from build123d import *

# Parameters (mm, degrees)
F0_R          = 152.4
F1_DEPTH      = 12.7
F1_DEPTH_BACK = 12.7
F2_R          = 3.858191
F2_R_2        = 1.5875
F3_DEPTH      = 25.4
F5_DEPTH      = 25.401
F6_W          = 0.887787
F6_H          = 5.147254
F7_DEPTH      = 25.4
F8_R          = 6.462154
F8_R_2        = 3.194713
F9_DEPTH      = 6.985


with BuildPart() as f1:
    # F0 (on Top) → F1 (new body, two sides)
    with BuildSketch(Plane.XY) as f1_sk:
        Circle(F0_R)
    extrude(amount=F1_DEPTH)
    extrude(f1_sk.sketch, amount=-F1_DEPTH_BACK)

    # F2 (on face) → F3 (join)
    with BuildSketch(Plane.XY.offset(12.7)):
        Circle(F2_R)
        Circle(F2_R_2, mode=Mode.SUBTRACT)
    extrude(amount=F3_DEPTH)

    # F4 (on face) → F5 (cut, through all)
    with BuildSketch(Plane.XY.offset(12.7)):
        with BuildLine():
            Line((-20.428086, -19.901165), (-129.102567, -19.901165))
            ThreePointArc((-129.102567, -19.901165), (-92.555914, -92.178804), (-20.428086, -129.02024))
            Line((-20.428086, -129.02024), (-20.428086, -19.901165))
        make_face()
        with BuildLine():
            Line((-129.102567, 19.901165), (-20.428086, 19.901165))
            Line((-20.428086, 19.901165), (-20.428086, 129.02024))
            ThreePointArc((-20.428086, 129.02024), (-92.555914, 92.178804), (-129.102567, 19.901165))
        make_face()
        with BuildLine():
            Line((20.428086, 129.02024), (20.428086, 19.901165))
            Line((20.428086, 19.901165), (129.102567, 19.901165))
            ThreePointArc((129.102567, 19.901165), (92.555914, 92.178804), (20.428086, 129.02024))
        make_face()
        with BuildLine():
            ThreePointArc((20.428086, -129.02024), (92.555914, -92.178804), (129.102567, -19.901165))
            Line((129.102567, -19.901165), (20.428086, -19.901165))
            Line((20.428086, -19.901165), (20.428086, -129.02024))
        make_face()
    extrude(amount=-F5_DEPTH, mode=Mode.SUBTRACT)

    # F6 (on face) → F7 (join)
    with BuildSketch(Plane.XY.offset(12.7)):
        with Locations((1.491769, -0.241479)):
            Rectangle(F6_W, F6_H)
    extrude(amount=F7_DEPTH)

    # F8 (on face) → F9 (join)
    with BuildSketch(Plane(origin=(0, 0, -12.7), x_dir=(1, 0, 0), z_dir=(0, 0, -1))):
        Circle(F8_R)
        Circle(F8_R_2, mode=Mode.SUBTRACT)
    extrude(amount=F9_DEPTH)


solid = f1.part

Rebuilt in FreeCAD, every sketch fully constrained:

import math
import FreeCAD as App
import Part
import Sketcher
from FreeCAD import Vector
Q = App.Units.Quantity


def add_polygon(sketch, points):
    """Adds a closed chain of lines whose ends are joined by coincident constraints."""
    first, n = sketch.GeometryCount, len(points)
    for a, b in zip(points, points[1:] + points[:1]):
        sketch.addGeometry(Part.LineSegment(App.Vector(*a, 0), App.Vector(*b, 0)), False)
    for i in range(n):
        sketch.addConstraint(Sketcher.Constraint("Coincident", first + i, 2, first + (i + 1) % n, 1))

doc = App.newDocument("Part")
params = doc.addObject("Spreadsheet::Sheet", "Params")
for row, (alias, value) in enumerate([
    ("sketch1_diameter", "12 in"),
    ("pad1_length", "0.5 in"),
    ("pad1_length2", "0.5 in"),
    ("sketch2_diameter", "0.125 in"),
    ("pad2_length", "1 in"),
    ("pad3_length", "1 in"),
    ("pad4_length", "0.275 in"),
], start=1):
    params.set(f"A{row}", alias)
    params.set(f"B{row}", "=" + value)
    params.setAlias(f"B{row}", alias)

body = doc.addObject("PartDesign::Body", "Body")

sketch1 = body.newObject("Sketcher::SketchObject", "Sketch")
sketch1.AttachmentSupport = (doc.getObject("XY_Plane"), [""])
sketch1.MapMode = "FlatFace"
sketch1.addGeometry(Part.Circle(Vector(0, 0, 0), Vector(0, 0, 1), 152), False)
sketch1.addConstraint(Sketcher.Constraint("Coincident", 0, 3, -1, 1))
sketch1.addConstraint(Sketcher.Constraint("Diameter", 0, Q("12 in")))
sketch1.setExpression("Constraints[1]", "Params.sketch1_diameter")
pad1 = body.newObject("PartDesign::Pad", "Pad")
pad1.Profile = sketch1
pad1.Type = "TwoLengths"
pad1.setExpression("Length", "Params.pad1_length")
pad1.setExpression("Length2", "Params.pad1_length2")

sketch2 = body.newObject("Sketcher::SketchObject", "Sketch001")
sketch2.AttachmentSupport = (doc.getObject("XY_Plane"), [""])
sketch2.MapMode = "FlatFace"
sketch2.AttachmentOffset = App.Placement(Vector(0, 0, 0.5 * 25.4), App.Rotation())
sketch2.addGeometry(Part.Circle(Vector(0, 0, 0), Vector(0, 0, 1), 3.9), False)
sketch2.addGeometry(Part.Circle(Vector(0, 0, 0), Vector(0, 0, 1), 1.6), False)
sketch2.addConstraint(Sketcher.Constraint("Coincident", 0, 3, -1, 1))
sketch2.addConstraint(Sketcher.Constraint("Coincident", 1, 3, -1, 1))
sketch2.addConstraint(Sketcher.Constraint("Diameter", 1, Q("0.125 in")))
sketch2.addConstraint(Sketcher.Constraint("Diameter", 0, Q("7.716382 mm")))
sketch2.setExpression("Constraints[2]", "Params.sketch2_diameter")
pad2 = body.newObject("PartDesign::Pad", "Pad001")
pad2.Profile = sketch2
pad2.setExpression("Length", "Params.pad2_length")

sketch3 = body.newObject("Sketcher::SketchObject", "Sketch002")
sketch3.AttachmentSupport = (doc.getObject("XY_Plane"), [""])
sketch3.MapMode = "FlatFace"
sketch3.AttachmentOffset = App.Placement(Vector(0, 0, 0.5 * 25.4), App.Rotation())
sketch3.addGeometry(Part.LineSegment(Vector(-20, -20, 0), Vector(-129, -20, 0)), False)
sketch3.addGeometry(Part.ArcOfCircle(Part.Circle(Vector(0, 0, 0), Vector(0, 0, 1), 131), math.radians(-171), math.radians(-99)), False)
sketch3.addGeometry(Part.LineSegment(Vector(-20, -129, 0), Vector(-20, -20, 0)), False)
sketch3.addGeometry(Part.LineSegment(Vector(-129, 20, 0), Vector(-20, 20, 0)), False)
sketch3.addGeometry(Part.LineSegment(Vector(-20, 20, 0), Vector(-20, 129, 0)), False)
sketch3.addGeometry(Part.ArcOfCircle(Part.Circle(Vector(0, 0, 0), Vector(0, 0, 1), 131), math.radians(99), math.radians(171)), False)
sketch3.addGeometry(Part.LineSegment(Vector(20, 129, 0), Vector(20, 20, 0)), False)
sketch3.addGeometry(Part.LineSegment(Vector(20, 20, 0), Vector(129, 20, 0)), False)
sketch3.addGeometry(Part.ArcOfCircle(Part.Circle(Vector(0, 0, 0), Vector(0, 0, 1), 131), math.radians(9), math.radians(81)), False)
sketch3.addGeometry(Part.ArcOfCircle(Part.Circle(Vector(0, 0, 0), Vector(0, 0, 1), 131), math.radians(-81), math.radians(-9)), False)
sketch3.addGeometry(Part.LineSegment(Vector(129, -20, 0), Vector(20, -20, 0)), False)
sketch3.addGeometry(Part.LineSegment(Vector(20, -20, 0), Vector(20, -129, 0)), False)
sketch3.addConstraint(Sketcher.Constraint("Coincident", 0, 2, 1, 1))
sketch3.addConstraint(Sketcher.Constraint("Coincident", 1, 2, 2, 1))
sketch3.addConstraint(Sketcher.Constraint("Coincident", 2, 2, 0, 1))
sketch3.addConstraint(Sketcher.Constraint("Coincident", 3, 2, 4, 1))
sketch3.addConstraint(Sketcher.Constraint("Coincident", 4, 2, 5, 1))
sketch3.addConstraint(Sketcher.Constraint("Coincident", 5, 2, 3, 1))
sketch3.addConstraint(Sketcher.Constraint("Coincident", 6, 2, 7, 1))
sketch3.addConstraint(Sketcher.Constraint("Coincident", 7, 2, 8, 1))
sketch3.addConstraint(Sketcher.Constraint("Coincident", 8, 2, 6, 1))
sketch3.addConstraint(Sketcher.Constraint("Coincident", 9, 2, 10, 1))
sketch3.addConstraint(Sketcher.Constraint("Coincident", 10, 2, 11, 1))
sketch3.addConstraint(Sketcher.Constraint("Coincident", 11, 2, 9, 1))
sketch3.addConstraint(Sketcher.Constraint("Horizontal", 0))
sketch3.addConstraint(Sketcher.Constraint("Vertical", 2))
sketch3.addConstraint(Sketcher.Constraint("Horizontal", 3))
sketch3.addConstraint(Sketcher.Constraint("Vertical", 4))
sketch3.addConstraint(Sketcher.Constraint("Vertical", 6))
sketch3.addConstraint(Sketcher.Constraint("Horizontal", 7))
sketch3.addConstraint(Sketcher.Constraint("Horizontal", 10))
sketch3.addConstraint(Sketcher.Constraint("Vertical", 11))
sketch3.addConstraint(Sketcher.Constraint("Coincident", 1, 3, -1, 1))
sketch3.addConstraint(Sketcher.Constraint("Coincident", 5, 3, -1, 1))
sketch3.addConstraint(Sketcher.Constraint("Coincident", 8, 3, -1, 1))
sketch3.addConstraint(Sketcher.Constraint("Coincident", 9, 3, -1, 1))
sketch3.addConstraint(Sketcher.Constraint("Equal", 1, 5))
sketch3.addConstraint(Sketcher.Constraint("Equal", 5, 8))
sketch3.addConstraint(Sketcher.Constraint("Equal", 8, 9))
sketch3.addConstraint(Sketcher.Constraint("Symmetric", 2, 2, 6, 2, -1, 1))
sketch3.addConstraint(Sketcher.Constraint("Symmetric", 3, 2, 10, 2, -1, 1))
sketch3.addConstraint(Sketcher.Constraint("Symmetric", 3, 2, 6, 2, -2))
sketch3.addConstraint(Sketcher.Constraint("Radius", 1, Q("130.627444 mm")))
sketch3.addConstraint(Sketcher.Constraint("DistanceX", 0, 2, 0, 1, Q("108.674481 mm")))
sketch3.addConstraint(Sketcher.Constraint("DistanceY", 2, 1, 2, 2, Q("109.119075 mm")))
pocket1 = body.newObject("PartDesign::Pocket", "Pocket")
pocket1.Profile = sketch3
pocket1.Type = "ThroughAll"

sketch4 = body.newObject("Sketcher::SketchObject", "Sketch003")
sketch4.AttachmentSupport = (doc.getObject("XY_Plane"), [""])
sketch4.MapMode = "FlatFace"
sketch4.AttachmentOffset = App.Placement(Vector(0, 0, 0.5 * 25.4), App.Rotation())
add_polygon(sketch4, [(1, 2.3), (1, -2.8), (1.9, -2.8), (1.9, 2.3)])
sketch4.addConstraint(Sketcher.Constraint("Vertical", 0))
sketch4.addConstraint(Sketcher.Constraint("Horizontal", 1))
sketch4.addConstraint(Sketcher.Constraint("Vertical", 2))
sketch4.addConstraint(Sketcher.Constraint("Horizontal", 3))
sketch4.addConstraint(Sketcher.Constraint("DistanceX", 1, 1, 1, 2, Q("0.887787 mm")))
sketch4.addConstraint(Sketcher.Constraint("DistanceY", 0, 2, 0, 1, Q("5.147254 mm")))
sketch4.addConstraint(Sketcher.Constraint("DistanceY", -1, 1, 2, 2, Q("2.332148 mm")))
sketch4.addConstraint(Sketcher.Constraint("DistanceX", -1, 1, 0, 2, Q("1.047875 mm")))
pad3 = body.newObject("PartDesign::Pad", "Pad002")
pad3.Profile = sketch4
pad3.setExpression("Length", "Params.pad3_length")

sketch5 = body.newObject("Sketcher::SketchObject", "Sketch004")
sketch5.AttachmentSupport = (doc.getObject("XY_Plane"), [""])
sketch5.MapMode = "FlatFace"
sketch5.AttachmentOffset = App.Placement(Vector(0, 0, -0.5 * 25.4), App.Rotation())
sketch5.addGeometry(Part.Circle(Vector(0, 0, 0), Vector(0, 0, 1), 6.5), False)
sketch5.addGeometry(Part.Circle(Vector(0, 0, 0), Vector(0, 0, 1), 3.2), False)
sketch5.addConstraint(Sketcher.Constraint("Coincident", 0, 3, -1, 1))
sketch5.addConstraint(Sketcher.Constraint("Coincident", 1, 3, -1, 1))
sketch5.addConstraint(Sketcher.Constraint("Diameter", 0, Q("12.924308 mm")))
sketch5.addConstraint(Sketcher.Constraint("Diameter", 1, Q("6.389426 mm")))
pad4 = body.newObject("PartDesign::Pad", "Pad003")
pad4.Profile = sketch5
pad4.setExpression("Length", "Params.pad4_length")
pad4.Reversed = True

doc.recompute()
